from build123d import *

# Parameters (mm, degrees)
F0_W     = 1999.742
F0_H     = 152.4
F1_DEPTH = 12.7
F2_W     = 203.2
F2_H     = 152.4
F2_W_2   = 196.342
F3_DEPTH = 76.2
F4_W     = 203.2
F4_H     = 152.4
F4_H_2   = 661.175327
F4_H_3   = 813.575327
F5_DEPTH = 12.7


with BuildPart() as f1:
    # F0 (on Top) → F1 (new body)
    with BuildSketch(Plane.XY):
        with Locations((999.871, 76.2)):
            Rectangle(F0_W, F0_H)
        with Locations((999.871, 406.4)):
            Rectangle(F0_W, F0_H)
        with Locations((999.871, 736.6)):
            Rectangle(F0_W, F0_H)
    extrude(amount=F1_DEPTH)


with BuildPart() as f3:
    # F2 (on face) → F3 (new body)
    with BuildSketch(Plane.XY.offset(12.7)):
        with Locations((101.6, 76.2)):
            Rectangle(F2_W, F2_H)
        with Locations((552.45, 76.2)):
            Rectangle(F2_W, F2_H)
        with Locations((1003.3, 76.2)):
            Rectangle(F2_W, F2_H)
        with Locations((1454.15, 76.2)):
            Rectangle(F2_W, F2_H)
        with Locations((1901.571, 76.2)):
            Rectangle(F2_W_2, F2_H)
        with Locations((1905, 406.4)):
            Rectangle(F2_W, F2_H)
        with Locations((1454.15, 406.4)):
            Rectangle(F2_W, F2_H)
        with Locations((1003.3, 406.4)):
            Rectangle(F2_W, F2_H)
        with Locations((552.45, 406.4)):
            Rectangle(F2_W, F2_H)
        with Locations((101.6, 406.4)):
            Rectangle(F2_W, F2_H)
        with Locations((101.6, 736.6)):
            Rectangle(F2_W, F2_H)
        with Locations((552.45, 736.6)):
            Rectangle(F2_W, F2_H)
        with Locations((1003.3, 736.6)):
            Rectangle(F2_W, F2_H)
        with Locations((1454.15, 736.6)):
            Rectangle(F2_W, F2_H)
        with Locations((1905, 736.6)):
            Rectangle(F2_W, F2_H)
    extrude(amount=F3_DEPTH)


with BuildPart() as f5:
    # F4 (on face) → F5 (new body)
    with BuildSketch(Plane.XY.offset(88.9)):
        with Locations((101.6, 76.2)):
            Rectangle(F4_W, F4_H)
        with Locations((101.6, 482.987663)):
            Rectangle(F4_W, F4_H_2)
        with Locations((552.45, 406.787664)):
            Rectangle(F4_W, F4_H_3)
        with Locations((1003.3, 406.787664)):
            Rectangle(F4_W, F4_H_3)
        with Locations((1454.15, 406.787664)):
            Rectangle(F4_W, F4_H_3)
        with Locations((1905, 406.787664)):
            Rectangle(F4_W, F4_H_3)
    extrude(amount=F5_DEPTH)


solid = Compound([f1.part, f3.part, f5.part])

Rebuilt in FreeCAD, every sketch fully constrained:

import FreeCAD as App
import Part
import Sketcher
Q = App.Units.Quantity


def add_polygon(sketch, points):
    """Adds a closed chain of lines whose ends are joined by coincident constraints."""
    first, n = sketch.GeometryCount, len(points)
    for a, b in zip(points, points[1:] + points[:1]):
        sketch.addGeometry(Part.LineSegment(App.Vector(*a, 0), App.Vector(*b, 0)), False)
    for i in range(n):
        sketch.addConstraint(Sketcher.Constraint("Coincident", first + i, 2, first + (i + 1) % n, 1))

doc = App.newDocument("Part")
body = doc.addObject("PartDesign::Body", "Body")
body.AllowCompound = True

sketch1 = body.newObject("Sketcher::SketchObject", "Sketch")
sketch1.AttachmentSupport = (doc.getObject("XY_Plane"), [""])
sketch1.MapMode = "FlatFace"
add_polygon(sketch1, [(0, 152), (0, 0), (2000, 0), (2000, 152)])
add_polygon(sketch1, [(0, 483), (0, 330), (2000, 330), (2000, 483)])
add_polygon(sketch1, [(0, 813), (0, 660), (2000, 660), (2000, 813)])
sketch1.addConstraint(Sketcher.Constraint("Vertical", 0))
sketch1.addConstraint(Sketcher.Constraint("Horizontal", 1))
sketch1.addConstraint(Sketcher.Constraint("Vertical", 2))
sketch1.addConstraint(Sketcher.Constraint("Horizontal", 3))
sketch1.addConstraint(Sketcher.Constraint("Vertical", 4))
sketch1.addConstraint(Sketcher.Constraint("Horizontal", 5))
sketch1.addConstraint(Sketcher.Constraint("Vertical", 6))
sketch1.addConstraint(Sketcher.Constraint("Horizontal", 7))
sketch1.addConstraint(Sketcher.Constraint("Vertical", 8))
sketch1.addConstraint(Sketcher.Constraint("Horizontal", 9))
sketch1.addConstraint(Sketcher.Constraint("Vertical", 10))
sketch1.addConstraint(Sketcher.Constraint("Horizontal", 11))
sketch1.addConstraint(Sketcher.Constraint("Coincident", 0, 2, -1, 1))
sketch1.addConstraint(Sketcher.Constraint("PointOnObject", 4, 2, -2))
sketch1.addConstraint(Sketcher.Constraint("PointOnObject", 8, 2, -2))
sketch1.addConstraint(Sketcher.Constraint("Vertical", 2, 2, 5, 2))
sketch1.addConstraint(Sketcher.Constraint("Vertical", 6, 2, 9, 2))
sketch1.addConstraint(Sketcher.Constraint("Equal", 2, 4))
sketch1.addConstraint(Sketcher.Constraint("Equal", 6, 8))
sketch1.addConstraint(Sketcher.Constraint("DistanceY", 0, 2, 0, 1, Q("6 in")))
sketch1.addConstraint(Sketcher.Constraint("DistanceY", -1, 1, 4, 2, Q("13 in")))
sketch1.addConstraint(Sketcher.Constraint("DistanceY", -1, 1, 8, 2, Q("26 in")))
sketch1.addConstraint(Sketcher.Constraint("DistanceX", 1, 1, 1, 2, Q("78.73 in")))
pad1 = body.newObject("PartDesign::Pad", "Pad")
pad1.Profile = sketch1
pad1.Length = Q("0.5 in")
body2 = doc.addObject("PartDesign::Body", "Body001")
body2.AllowCompound = True

sketch2 = body2.newObject("Sketcher::SketchObject", "Sketch001")
sketch2.AttachmentSupport = (doc.getObject("XY_Plane001"), [""])
sketch2.MapMode = "FlatFace"
sketch2.AttachmentOffset = App.Placement(App.Vector(0, 0, 0.5 * 25.4), App.Rotation())
add_polygon(sketch2, [(0, 152), (0, 0), (203, 0), (203, 152)])
add_polygon(sketch2, [(451, 152), (451, 0), (654, 0), (654, 152)])
add_polygon(sketch2, [(902, 152), (902, 0), (1105, 0), (1105, 152)])
add_polygon(sketch2, [(1353, 152), (1353, 0), (1556, 0), (1556, 152)])
add_polygon(sketch2, [(1803, 152), (1803, 0), (2000, 0), (2000, 152)])
add_polygon(sketch2, [(1803, 483), (1803, 330), (2007, 330), (2007, 483)])
add_polygon(sketch2, [(1353, 483), (1353, 330), (1556, 330), (1556, 483)])
add_polygon(sketch2, [(902, 483), (902, 330), (1105, 330), (1105, 483)])
add_polygon(sketch2, [(451, 483), (451, 330), (654, 330), (654, 483)])
add_polygon(sketch2, [(0, 483), (0, 330), (203, 330), (203, 483)])
add_polygon(sketch2, [(0, 813), (0, 660), (203, 660), (203, 813)])
add_polygon(sketch2, [(451, 813), (451, 660), (654, 660), (654, 813)])
add_polygon(sketch2, [(902, 813), (902, 660), (1105, 660), (1105, 813)])
add_polygon(sketch2, [(1353, 813), (1353, 660), (1556, 660), (1556, 813)])
add_polygon(sketch2, [(1803, 813), (1803, 660), (2007, 660), (2007, 813)])
sketch2.addConstraint(Sketcher.Constraint("Vertical", 0))
sketch2.addConstraint(Sketcher.Constraint("Horizontal", 1))
sketch2.addConstraint(Sketcher.Constraint("Vertical", 2))
sketch2.addConstraint(Sketcher.Constraint("Horizontal", 3))
sketch2.addConstraint(Sketcher.Constraint("Vertical", 4))
sketch2.addConstraint(Sketcher.Constraint("Horizontal", 5))
sketch2.addConstraint(Sketcher.Constraint("Vertical", 6))
sketch2.addConstraint(Sketcher.Constraint("Horizontal", 7))
sketch2.addConstraint(Sketcher.Constraint("Vertical", 8))
sketch2.addConstraint(Sketcher.Constraint("Horizontal", 9))
sketch2.addConstraint(Sketcher.Constraint("Vertical", 10))
sketch2.addConstraint(Sketcher.Constraint("Horizontal", 11))
sketch2.addConstraint(Sketcher.Constraint("Vertical", 12))
sketch2.addConstraint(Sketcher.Constraint("Horizontal", 13))
sketch2.addConstraint(Sketcher.Constraint("Vertical", 14))
sketch2.addConstraint(Sketcher.Constraint("Horizontal", 15))
sketch2.addConstraint(Sketcher.Constraint("Vertical", 16))
sketch2.addConstraint(Sketcher.Constraint("Horizontal", 17))
sketch2.addConstraint(Sketcher.Constraint("Vertical", 18))
sketch2.addConstraint(Sketcher.Constraint("Horizontal", 19))
sketch2.addConstraint(Sketcher.Constraint("Vertical", 20))
sketch2.addConstraint(Sketcher.Constraint("Horizontal", 21))
sketch2.addConstraint(Sketcher.Constraint("Vertical", 22))
sketch2.addConstraint(Sketcher.Constraint("Horizontal", 23))
sketch2.addConstraint(Sketcher.Constraint("Vertical", 24))
sketch2.addConstraint(Sketcher.Constraint("Horizontal", 25))
sketch2.addConstraint(Sketcher.Constraint("Vertical", 26))
sketch2.addConstraint(Sketcher.Constraint("Horizontal", 27))
sketch2.addConstraint(Sketcher.Constraint("Vertical", 28))
sketch2.addConstraint(Sketcher.Constraint("Horizontal", 29))
sketch2.addConstraint(Sketcher.Constraint("Vertical", 30))
sketch2.addConstraint(Sketcher.Constraint("Horizontal", 31))
sketch2.addConstraint(Sketcher.Constraint("Vertical", 32))
sketch2.addConstraint(Sketcher.Constraint("Horizontal", 33))
sketch2.addConstraint(Sketcher.Constraint("Vertical", 34))
sketch2.addConstraint(Sketcher.Constraint("Horizontal", 35))
sketch2.addConstraint(Sketcher.Constraint("Vertical", 36))
sketch2.addConstraint(Sketcher.Constraint("Horizontal", 37))
sketch2.addConstraint(Sketcher.Constraint("Vertical", 38))
sketch2.addConstraint(Sketcher.Constraint("Horizontal", 39))
sketch2.addConstraint(Sketcher.Constraint("Vertical", 40))
sketch2.addConstraint(Sketcher.Constraint("Horizontal", 41))
sketch2.addConstraint(Sketcher.Constraint("Vertical", 42))
sketch2.addConstraint(Sketcher.Constraint("Horizontal", 43))
sketch2.addConstraint(Sketcher.Constraint("Vertical", 44))
sketch2.addConstraint(Sketcher.Constraint("Horizontal", 45))
sketch2.addConstraint(Sketcher.Constraint("Vertical", 46))
sketch2.addConstraint(Sketcher.Constraint("Horizontal", 47))
sketch2.addConstraint(Sketcher.Constraint("Vertical", 48))
sketch2.addConstraint(Sketcher.Constraint("Horizontal", 49))
sketch2.addConstraint(Sketcher.Constraint("Vertical", 50))
sketch2.addConstraint(Sketcher.Constraint("Horizontal", 51))
sketch2.addConstraint(Sketcher.Constraint("Vertical", 52))
sketch2.addConstraint(Sketcher.Constraint("Horizontal", 53))
sketch2.addConstraint(Sketcher.Constraint("Vertical", 54))
sketch2.addConstraint(Sketcher.Constraint("Horizontal", 55))
sketch2.addConstraint(Sketcher.Constraint("Vertical", 56))
sketch2.addConstraint(Sketcher.Constraint("Horizontal", 57))
sketch2.addConstraint(Sketcher.Constraint("Vertical", 58))
sketch2.addConstraint(Sketcher.Constraint("Horizontal", 59))
sketch2.addConstraint(Sketcher.Constraint("Coincident", 0, 2, -1, 1))
sketch2.addConstraint(Sketcher.Constraint("PointOnObject", 4, 2, -1))
sketch2.addConstraint(Sketcher.Constraint("PointOnObject", 8, 2, -1))
sketch2.addConstraint(Sketcher.Constraint("PointOnObject", 12, 2, -1))
sketch2.addConstraint(Sketcher.Constraint("PointOnObject", 16, 2, -1))
sketch2.addConstraint(Sketcher.Constraint("PointOnObject", 36, 2, -2))
sketch2.addConstraint(Sketcher.Constraint("PointOnObject", 40, 2, -2))
sketch2.addConstraint(Sketcher.Constraint("Horizontal", 3, 2, 6, 2))
sketch2.addConstraint(Sketcher.Constraint("Horizontal", 7, 2, 10, 2))
sketch2.addConstraint(Sketcher.Constraint("Horizontal", 11, 2, 14, 2))
sketch2.addConstraint(Sketcher.Constraint("Horizontal", 15, 2, 18, 2))
sketch2.addConstraint(Sketcher.Constraint("Horizontal", 21, 2, 24, 2))
sketch2.addConstraint(Sketcher.Constraint("Horizontal", 23, 2, 26, 2))
sketch2.addConstraint(Sketcher.Constraint("Horizontal", 25, 2, 28, 2))
sketch2.addConstraint(Sketcher.Constraint("Horizontal", 27, 2, 30, 2))
sketch2.addConstraint(Sketcher.Constraint("Horizontal", 29, 2, 32, 2))
sketch2.addConstraint(Sketcher.Constraint("Horizontal", 31, 2, 34, 2))
sketch2.addConstraint(Sketcher.Constraint("Horizontal", 33, 2, 36, 2))
sketch2.addConstraint(Sketcher.Constraint("Horizontal", 35, 2, 38, 2))
sketch2.addConstraint(Sketcher.Constraint("Horizontal", 41, 2, 44, 2))
sketch2.addConstraint(Sketcher.Constraint("Horizontal", 43, 2, 46, 2))
sketch2.addConstraint(Sketcher.Constraint("Horizontal", 45, 2, 48, 2))
sketch2.addConstraint(Sketcher.Constraint("Horizontal", 47, 2, 50, 2))
sketch2.addConstraint(Sketcher.Constraint("Horizontal", 49, 2, 52, 2))
sketch2.addConstraint(Sketcher.Constraint("Horizontal", 51, 2, 54, 2))
sketch2.addConstraint(Sketcher.Constraint("Horizontal", 53, 2, 56, 2))
sketch2.addConstraint(Sketcher.Constraint("Horizontal", 55, 2, 58, 2))
sketch2.addConstraint(Sketcher.Constraint("Vertical", 19, 2, 20, 2))
sketch2.addConstraint(Sketcher.Constraint("Vertical", 15, 2, 24, 2))
sketch2.addConstraint(Sketcher.Constraint("Vertical", 14, 2, 25, 2))
sketch2.addConstraint(Sketcher.Constraint("Vertical", 11, 2, 28, 2))
sketch2.addConstraint(Sketcher.Constraint("Vertical", 10, 2, 29, 2))
sketch2.addConstraint(Sketcher.Constraint("Vertical", 7, 2, 32, 2))
sketch2.addConstraint(Sketcher.Constraint("Vertical", 6, 2, 33, 2))
sketch2.addConstraint(Sketcher.Constraint("Vertical", 2, 2, 37, 2))
sketch2.addConstraint(Sketcher.Constraint("Vertical", 38, 2, 41, 2))
sketch2.addConstraint(Sketcher.Constraint("Vertical", 35, 2, 44, 2))
sketch2.addConstraint(Sketcher.Constraint("Vertical", 34, 2, 45, 2))
sketch2.addConstraint(Sketcher.Constraint("Vertical", 31, 2, 48, 2))
sketch2.addConstraint(Sketcher.Constraint("Vertical", 30, 2, 49, 2))
sketch2.addConstraint(Sketcher.Constraint("Vertical", 27, 2, 52, 2))
sketch2.addConstraint(Sketcher.Constraint("Vertical", 26, 2, 53, 2))
sketch2.addConstraint(Sketcher.Constraint("Vertical", 23, 2, 56, 2))
sketch2.addConstraint(Sketcher.Constraint("Vertical", 22, 2, 57, 2))
sketch2.addConstraint(Sketcher.Constraint("Equal", 3, 5))
sketch2.addConstraint(Sketcher.Constraint("Equal", 7, 9))
sketch2.addConstraint(Sketcher.Constraint("Equal", 11, 13))
sketch2.addConstraint(Sketcher.Constraint("Equal", 15, 21))
sketch2.addConstraint(Sketcher.Constraint("Equal", 18, 20))
sketch2.addConstraint(Sketcher.Constraint("Equal", 38, 40))
sketch2.addConstraint(Sketcher.Constraint("DistanceX", 1, 1, 1, 2, Q("8 in")))
sketch2.addConstraint(Sketcher.Constraint("DistanceY", 0, 2, 0, 1, Q("6 in")))
sketch2.addConstraint(Sketcher.Constraint("DistanceX", -1, 1, 16, 2, Q("71 in")))
sketch2.addConstraint(Sketcher.Constraint("DistanceY", -1, 1, 20, 2, Q("13 in")))
sketch2.addConstraint(Sketcher.Constraint("DistanceY", -1, 1, 40, 2, Q("26 in")))
sketch2.addConstraint(Sketcher.Constraint("DistanceX", 17, 1, 17, 2, Q("7.73 in")))
sketch2.addConstraint(Sketcher.Constraint("DistanceX", -1, 1, 8, 2, Q("35.5 in")))
sketch2.addConstraint(Sketcher.Constraint("DistanceX", 5, 2, 12, 2, Q("27.5 in")))
sketch2.addConstraint(Sketcher.Constraint("DistanceX", -1, 1, 4, 2, Q("17.75 in")))
pad2 = body2.newObject("PartDesign::Pad", "Pad001")
pad2.Profile = sketch2
pad2.Length = Q("3 in")
body3 = doc.addObject("PartDesign::Body", "Body002")
body3.AllowCompound = True

sketch3 = body3.newObject("Sketcher::SketchObject", "Sketch002")
sketch3.AttachmentSupport = (doc.getObject("XY_Plane002"), [""])
sketch3.MapMode = "FlatFace"
sketch3.AttachmentOffset = App.Placement(App.Vector(0, 0, 3.5 * 25.4), App.Rotation())
add_polygon(sketch3, [(0, 0), (203, 0), (203, 814), (0, 814)])
add_polygon(sketch3, [(451, 814), (451, 0), (654, 0), (654, 814)])
add_polygon(sketch3, [(902, 814), (902, 0), (1105, 0), (1105, 814)])
add_polygon(sketch3, [(1353, 814), (1353, 0), (1556, 0), (1556, 814)])
add_polygon(sketch3, [(1803, 814), (1803, 0), (2007, 0), (2007, 814)])
sketch3.addConstraint(Sketcher.Constraint("Horizontal", 0))
sketch3.addConstraint(Sketcher.Constraint("Vertical", 1))
sketch3.addConstraint(Sketcher.Constraint("Horizontal", 2))
sketch3.addConstraint(Sketcher.Constraint("Vertical", 3))
sketch3.addConstraint(Sketcher.Constraint("Vertical", 4))
sketch3.addConstraint(Sketcher.Constraint("Horizontal", 5))
sketch3.addConstraint(Sketcher.Constraint("Vertical", 6))
sketch3.addConstraint(Sketcher.Constraint("Horizontal", 7))
sketch3.addConstraint(Sketcher.Constraint("Vertical", 8))
sketch3.addConstraint(Sketcher.Constraint("Horizontal", 9))
sketch3.addConstraint(Sketcher.Constraint("Vertical", 10))
sketch3.addConstraint(Sketcher.Constraint("Horizontal", 11))
sketch3.addConstraint(Sketcher.Constraint("Vertical", 12))
sketch3.addConstraint(Sketcher.Constraint("Horizontal", 13))
sketch3.addConstraint(Sketcher.Constraint("Vertical", 14))
sketch3.addConstraint(Sketcher.Constraint("Horizontal", 15))
sketch3.addConstraint(Sketcher.Constraint("Vertical", 16))
sketch3.addConstraint(Sketcher.Constraint("Horizontal", 17))
sketch3.addConstraint(Sketcher.Constraint("Vertical", 18))
sketch3.addConstraint(Sketcher.Constraint("Horizontal", 19))
sketch3.addConstraint(Sketcher.Constraint("Coincident", 3, 2, -1, 1))
sketch3.addConstraint(Sketcher.Constraint("PointOnObject", 4, 2, -1))
sketch3.addConstraint(Sketcher.Constraint("PointOnObject", 8, 2, -1))
sketch3.addConstraint(Sketcher.Constraint("PointOnObject", 12, 2, -1))
sketch3.addConstraint(Sketcher.Constraint("PointOnObject", 16, 2, -1))
sketch3.addConstraint(Sketcher.Constraint("Horizontal", 2, 2, 6, 2))
sketch3.addConstraint(Sketcher.Constraint("Horizontal", 7, 2, 10, 2))
sketch3.addConstraint(Sketcher.Constraint("Horizontal", 11, 2, 14, 2))
sketch3.addConstraint(Sketcher.Constraint("Horizontal", 15, 2, 18, 2))
sketch3.addConstraint(Sketcher.Constraint("Equal", 2, 5))
sketch3.addConstraint(Sketcher.Constraint("Equal", 7, 9))
sketch3.addConstraint(Sketcher.Constraint("Equal", 11, 13))
sketch3.addConstraint(Sketcher.Constraint("Equal", 15, 17))
sketch3.addConstraint(Sketcher.Constraint("DistanceX", 0, 1, 0, 2, Q("8 in")))
sketch3.addConstraint(Sketcher.Constraint("DistanceX", -1, 1, 16, 2, Q("71 in")))
sketch3.addConstraint(Sketcher.Constraint("DistanceX", -1, 1, 8, 2, Q("35.5 in")))
sketch3.addConstraint(Sketcher.Constraint("DistanceX", 5, 2, 12, 2, Q("27.5 in")))
sketch3.addConstraint(Sketcher.Constraint("DistanceX", -1, 1, 4, 2, Q("17.75 in")))
sketch3.addConstraint(Sketcher.Constraint("DistanceY", 1, 1, 1, 2, Q("813.575326 mm")))
pad3 = body3.newObject("PartDesign::Pad", "Pad002")
pad3.Profile = sketch3
pad3.Length = Q("0.5 in")

doc.recompute()
